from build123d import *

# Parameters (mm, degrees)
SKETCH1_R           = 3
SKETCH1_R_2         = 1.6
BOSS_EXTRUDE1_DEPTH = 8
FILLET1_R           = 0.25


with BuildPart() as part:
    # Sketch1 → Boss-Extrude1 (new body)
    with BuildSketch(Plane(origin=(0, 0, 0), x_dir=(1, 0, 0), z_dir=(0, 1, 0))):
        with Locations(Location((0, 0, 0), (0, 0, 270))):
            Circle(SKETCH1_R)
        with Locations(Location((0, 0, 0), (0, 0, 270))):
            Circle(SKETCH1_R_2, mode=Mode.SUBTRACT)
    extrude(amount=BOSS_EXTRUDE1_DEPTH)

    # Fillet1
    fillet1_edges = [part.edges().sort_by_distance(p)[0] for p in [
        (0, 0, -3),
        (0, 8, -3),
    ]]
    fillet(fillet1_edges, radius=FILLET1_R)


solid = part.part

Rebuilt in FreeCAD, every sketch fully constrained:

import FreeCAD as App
import Part
import Sketcher


def edges_at(feature, points):
    """Names of the edges that pass closest to the given points."""
    edges = feature.Shape.Edges
    near = lambda p: min(range(len(edges)), key=lambda i: edges[i].distToShape(Part.Vertex(*p))[0])
    return sorted({f"Edge{near(p) + 1}" for p in points})

doc = App.newDocument("Part")
params = doc.addObject("Spreadsheet::Sheet", "Params")
for row, (alias, value) in enumerate([
    ("sketch1_diameter", "6 mm"),
    ("sketch1_diameter2", "3.2 mm"),
    ("pad1_length", "8 mm"),
    ("fillet_radius", "0.25 mm"),
], start=1):
    params.set(f"A{row}", alias)
    params.set(f"B{row}", "=" + value)
    params.setAlias(f"B{row}", alias)

body = doc.addObject("PartDesign::Body", "Body")

# Sketch on XZ plane
sketch1 = body.newObject("Sketcher::SketchObject", "Sketch")
sketch1.AttachmentSupport = (doc.getObject("XZ_Plane"), [""])
sketch1.MapMode = "FlatFace"
sketch1.addGeometry([
    Part.Circle(App.Vector(0, 0, 0), App.Vector(0, 0, 1), 3),
    Part.Circle(App.Vector(0, 0, 0), App.Vector(0, 0, 1), 1.6),
], False)
sketch1.addConstraint([
    Sketcher.Constraint("Coincident", 0, 3, -1, 1),
    Sketcher.Constraint("Coincident", 1, 3, -1, 1),
    Sketcher.Constraint("Diameter", 0, 6.0),
    Sketcher.Constraint("Diameter", 1, 3.2),
])
sketch1.setExpression("Constraints[2]", "Params.sketch1_diameter")
sketch1.setExpression("Constraints[3]", "Params.sketch1_diameter2")
pad1 = body.newObject("PartDesign::Pad", "Pad")
pad1.Profile = sketch1
pad1.setExpression("Length", "Params.pad1_length")
pad1.Reversed = True
doc.recompute()

fillet = body.newObject("PartDesign::Fillet", "Fillet")
fillet.Base = (pad1, edges_at(pad1, [(0, 0, -3), (0, 8, -3)]))
fillet.setExpression("Radius", "Params.fillet_radius")

doc.recompute()
